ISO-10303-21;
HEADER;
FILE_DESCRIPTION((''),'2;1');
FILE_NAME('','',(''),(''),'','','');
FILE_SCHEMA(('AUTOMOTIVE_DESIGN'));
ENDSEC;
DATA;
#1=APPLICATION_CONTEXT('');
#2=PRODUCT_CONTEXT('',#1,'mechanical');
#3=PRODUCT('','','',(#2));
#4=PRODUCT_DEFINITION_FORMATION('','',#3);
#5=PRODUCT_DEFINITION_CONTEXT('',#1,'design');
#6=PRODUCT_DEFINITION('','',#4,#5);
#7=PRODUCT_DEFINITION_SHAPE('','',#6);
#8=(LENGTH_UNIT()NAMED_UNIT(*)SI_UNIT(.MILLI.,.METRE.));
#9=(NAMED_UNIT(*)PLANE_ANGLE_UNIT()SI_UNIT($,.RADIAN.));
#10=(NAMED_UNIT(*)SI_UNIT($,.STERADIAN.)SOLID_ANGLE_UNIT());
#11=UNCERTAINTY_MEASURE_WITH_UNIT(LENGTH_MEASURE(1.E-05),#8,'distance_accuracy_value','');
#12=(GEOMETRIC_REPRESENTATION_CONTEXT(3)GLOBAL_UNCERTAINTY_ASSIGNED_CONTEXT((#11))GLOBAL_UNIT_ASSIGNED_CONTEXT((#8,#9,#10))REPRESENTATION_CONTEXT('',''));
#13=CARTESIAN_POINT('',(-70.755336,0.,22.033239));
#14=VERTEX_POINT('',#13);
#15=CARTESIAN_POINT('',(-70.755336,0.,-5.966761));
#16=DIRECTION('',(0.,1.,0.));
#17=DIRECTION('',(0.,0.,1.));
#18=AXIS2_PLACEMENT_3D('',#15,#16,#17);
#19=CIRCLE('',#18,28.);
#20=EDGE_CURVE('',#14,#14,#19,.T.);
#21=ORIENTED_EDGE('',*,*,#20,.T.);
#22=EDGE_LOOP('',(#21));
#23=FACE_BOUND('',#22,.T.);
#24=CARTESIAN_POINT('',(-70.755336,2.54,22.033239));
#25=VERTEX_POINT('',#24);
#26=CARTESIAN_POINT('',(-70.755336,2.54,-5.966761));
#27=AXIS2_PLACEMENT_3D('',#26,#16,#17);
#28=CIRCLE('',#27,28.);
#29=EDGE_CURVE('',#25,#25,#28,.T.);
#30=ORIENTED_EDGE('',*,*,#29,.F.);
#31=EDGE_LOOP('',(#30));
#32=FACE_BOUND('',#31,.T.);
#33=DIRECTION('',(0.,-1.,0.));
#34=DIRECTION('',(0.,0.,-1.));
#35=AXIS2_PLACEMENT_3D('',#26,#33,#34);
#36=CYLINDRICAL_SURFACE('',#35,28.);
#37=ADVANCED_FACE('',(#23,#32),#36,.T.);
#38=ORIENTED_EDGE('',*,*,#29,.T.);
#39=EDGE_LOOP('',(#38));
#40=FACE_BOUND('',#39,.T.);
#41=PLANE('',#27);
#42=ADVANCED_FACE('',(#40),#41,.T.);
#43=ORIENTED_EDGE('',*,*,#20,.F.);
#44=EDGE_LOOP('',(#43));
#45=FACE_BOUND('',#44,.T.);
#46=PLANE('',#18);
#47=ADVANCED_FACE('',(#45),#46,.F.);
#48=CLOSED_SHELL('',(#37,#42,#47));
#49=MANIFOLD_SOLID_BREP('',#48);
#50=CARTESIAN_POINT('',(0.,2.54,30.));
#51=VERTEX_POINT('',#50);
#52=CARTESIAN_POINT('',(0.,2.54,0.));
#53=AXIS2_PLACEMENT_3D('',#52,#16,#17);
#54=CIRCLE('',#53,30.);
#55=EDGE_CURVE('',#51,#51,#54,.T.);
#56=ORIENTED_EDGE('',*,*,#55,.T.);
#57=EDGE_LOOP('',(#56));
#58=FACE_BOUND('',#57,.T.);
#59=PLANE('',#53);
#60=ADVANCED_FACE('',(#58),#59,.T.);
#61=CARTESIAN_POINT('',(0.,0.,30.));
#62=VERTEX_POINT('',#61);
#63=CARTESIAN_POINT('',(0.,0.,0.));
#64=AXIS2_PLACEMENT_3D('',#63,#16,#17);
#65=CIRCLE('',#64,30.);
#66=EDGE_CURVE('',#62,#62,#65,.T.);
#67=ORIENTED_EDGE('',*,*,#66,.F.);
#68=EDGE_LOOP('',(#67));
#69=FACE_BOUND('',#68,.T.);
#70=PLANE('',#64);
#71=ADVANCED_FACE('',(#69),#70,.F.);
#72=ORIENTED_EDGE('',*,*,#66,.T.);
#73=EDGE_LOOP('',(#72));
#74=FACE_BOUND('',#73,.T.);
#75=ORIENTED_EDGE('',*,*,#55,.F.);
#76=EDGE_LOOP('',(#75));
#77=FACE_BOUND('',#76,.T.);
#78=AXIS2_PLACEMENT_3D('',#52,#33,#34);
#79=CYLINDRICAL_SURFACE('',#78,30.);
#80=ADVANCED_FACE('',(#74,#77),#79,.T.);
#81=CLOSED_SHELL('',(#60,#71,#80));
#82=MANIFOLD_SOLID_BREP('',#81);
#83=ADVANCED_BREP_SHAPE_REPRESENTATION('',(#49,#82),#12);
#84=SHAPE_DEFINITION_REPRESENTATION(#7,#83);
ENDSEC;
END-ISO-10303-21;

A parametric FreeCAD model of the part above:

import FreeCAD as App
import Part
import Sketcher

V = App.Vector
Q = App.Units.Quantity

doc = App.newDocument("Part")
params = doc.addObject("Spreadsheet::Sheet", "Params")
for row, (alias, value) in enumerate([
    ("sketch1_diameter", "60 mm"),
    ("pad1_length", "2.54 mm"),
    ("sketch2_diameter", "56 mm"),
    ("pad2_length", "2.54 mm"),
], start=1):
    params.set(f"A{row}", alias)
    params.set(f"B{row}", "=" + value)
    params.setAlias(f"B{row}", alias)

body = doc.addObject("PartDesign::Body", "Body")

# Sketch on XZ plane
sketch1 = body.newObject("Sketcher::SketchObject", "Sketch")
sketch1.AttachmentSupport = (doc.getObject("XZ_Plane"), [""])
sketch1.MapMode = "FlatFace"
sketch1.addGeometry(Part.Circle(V(0, 0, 0), V(0, 0, 1), 30), False)
sketch1.addConstraint([
    Sketcher.Constraint("Coincident", 0, 3, -1, 1),
    Sketcher.Constraint("Diameter", 0, Q("60 mm")),
])
sketch1.setExpression("Constraints[1]", "Params.sketch1_diameter")
pad1 = body.newObject("PartDesign::Pad", "Pad")
pad1.Profile = sketch1
pad1.setExpression("Length", "Params.pad1_length")
pad1.Reversed = True
body2 = doc.addObject("PartDesign::Body", "Body001")

# Sketch on XZ plane
sketch2 = body2.newObject("Sketcher::SketchObject", "Sketch001")
sketch2.AttachmentSupport = (doc.getObject("XZ_Plane001"), [""])
sketch2.MapMode = "FlatFace"
sketch2.addGeometry(Part.Circle(V(-71, -6, 0), V(0, 0, 1), 28), False)
sketch2.addConstraint([
    Sketcher.Constraint("Diameter", 0, Q("56 mm")),
    Sketcher.Constraint("DistanceY", 0, 3, -1, 1, Q("5.966761 mm")),
    Sketcher.Constraint("DistanceX", 0, 3, -1, 1, Q("70.755336 mm")),
])
sketch2.setExpression("Constraints[0]", "Params.sketch2_diameter")
pad2 = body2.newObject("PartDesign::Pad", "Pad001")
pad2.Profile = sketch2
pad2.setExpression("Length", "Params.pad2_length")
pad2.Reversed = True

doc.recompute()
